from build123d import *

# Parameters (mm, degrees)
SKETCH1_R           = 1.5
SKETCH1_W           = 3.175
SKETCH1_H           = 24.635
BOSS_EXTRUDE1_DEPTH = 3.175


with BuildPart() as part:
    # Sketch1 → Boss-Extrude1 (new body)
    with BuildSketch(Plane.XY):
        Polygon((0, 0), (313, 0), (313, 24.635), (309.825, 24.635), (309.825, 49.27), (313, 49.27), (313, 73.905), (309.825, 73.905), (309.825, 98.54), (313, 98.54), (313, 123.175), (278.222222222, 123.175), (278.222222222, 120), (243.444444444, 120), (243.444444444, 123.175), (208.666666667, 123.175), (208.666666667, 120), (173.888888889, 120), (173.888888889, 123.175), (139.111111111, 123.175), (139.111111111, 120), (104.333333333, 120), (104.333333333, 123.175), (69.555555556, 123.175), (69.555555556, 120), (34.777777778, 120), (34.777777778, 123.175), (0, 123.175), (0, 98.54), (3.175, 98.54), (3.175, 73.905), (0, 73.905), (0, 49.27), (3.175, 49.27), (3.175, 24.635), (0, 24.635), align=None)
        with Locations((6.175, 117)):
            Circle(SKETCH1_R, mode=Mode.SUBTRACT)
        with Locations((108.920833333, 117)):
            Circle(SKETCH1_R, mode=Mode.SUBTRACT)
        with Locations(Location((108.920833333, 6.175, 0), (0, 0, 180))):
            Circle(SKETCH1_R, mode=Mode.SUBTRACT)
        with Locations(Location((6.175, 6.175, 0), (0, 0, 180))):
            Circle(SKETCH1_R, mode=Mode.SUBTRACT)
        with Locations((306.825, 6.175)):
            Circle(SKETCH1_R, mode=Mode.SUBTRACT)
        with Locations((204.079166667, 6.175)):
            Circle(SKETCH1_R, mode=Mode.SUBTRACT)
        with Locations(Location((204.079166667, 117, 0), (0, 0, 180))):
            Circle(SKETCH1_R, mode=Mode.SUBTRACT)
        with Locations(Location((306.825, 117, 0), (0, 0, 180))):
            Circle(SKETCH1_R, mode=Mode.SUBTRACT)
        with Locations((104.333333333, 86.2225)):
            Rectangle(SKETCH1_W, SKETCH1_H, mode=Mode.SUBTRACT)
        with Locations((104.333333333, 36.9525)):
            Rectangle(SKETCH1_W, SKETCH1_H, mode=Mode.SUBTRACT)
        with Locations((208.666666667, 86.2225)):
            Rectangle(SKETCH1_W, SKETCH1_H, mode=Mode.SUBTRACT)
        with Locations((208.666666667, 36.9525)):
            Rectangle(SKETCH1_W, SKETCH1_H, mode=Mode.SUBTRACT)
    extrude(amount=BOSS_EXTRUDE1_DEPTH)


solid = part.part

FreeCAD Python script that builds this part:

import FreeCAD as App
import Part
import Sketcher
from FreeCAD import Vector
Q = App.Units.Quantity


def add_polygon(sketch, points):
    """Adds a closed chain of lines whose ends are joined by coincident constraints."""
    first, n = sketch.GeometryCount, len(points)
    for a, b in zip(points, points[1:] + points[:1]):
        sketch.addGeometry(Part.LineSegment(App.Vector(*a, 0), App.Vector(*b, 0)), False)
    for i in range(n):
        sketch.addConstraint(Sketcher.Constraint("Coincident", first + i, 2, first + (i + 1) % n, 1))

doc = App.newDocument("Part")
body = doc.addObject("PartDesign::Body", "Body")

# Sketch on XY plane
sketch1 = body.newObject("Sketcher::SketchObject", "Sketch")
sketch1.AttachmentSupport = (doc.getObject("XY_Plane"), [""])
sketch1.MapMode = "FlatFace"
add_polygon(sketch1, [(0, 0), (313, 0), (313, 24.635), (309.825, 24.635), (309.825, 49.27), (313, 49.27), (313, 73.905), (309.825, 73.905), (309.825, 98.54), (313, 98.54), (313, 123.175), (278.222222, 123.175), (278.222222, 120), (243.444444, 120), (243.444444, 123.175), (208.666667, 123.175), (208.666667, 120), (173.888889, 120), (173.888889, 123.175), (139.111111, 123.175), (139.111111, 120), (104.333333, 120), (104.333333, 123.175), (69.555556, 123.175), (69.555556, 120), (34.777778, 120), (34.777778, 123.175), (0, 123.175), (0, 98.54), (3.175, 98.54), (3.175, 73.905), (0, 73.905), (0, 49.27), (3.175, 49.27), (3.175, 24.635), (0, 24.635)])  # lines 0-35
sketch1.addGeometry(Part.Circle(Vector(6.175, 6.175, 0), Vector(0, 0, 1), 1.5), False)  # 36
sketch1.addGeometry(Part.Circle(Vector(108.920833, 6.175, 0), Vector(0, 0, 1), 1.5), False)  # 37
add_polygon(sketch1, [(105.920833, 24.635), (102.745833, 24.635), (102.745833, 49.27), (105.920833, 49.27)])  # lines 38-41
sketch1.addGeometry(Part.Circle(Vector(204.079167, 6.175, 0), Vector(0, 0, 1), 1.5), False)  # 42
sketch1.addGeometry(Part.Circle(Vector(306.825, 6.175, 0), Vector(0, 0, 1), 1.5), False)  # 43
add_polygon(sketch1, [(210.254167, 24.635), (207.079167, 24.635), (207.079167, 49.27), (210.254167, 49.27)])  # lines 44-47
add_polygon(sketch1, [(105.920833, 73.905), (102.745833, 73.905), (102.745833, 98.54), (105.920833, 98.54)])  # lines 48-51
sketch1.addGeometry(Part.Circle(Vector(6.175, 117, 0), Vector(0, 0, 1), 1.5), False)  # 52
sketch1.addGeometry(Part.Circle(Vector(108.920833, 117, 0), Vector(0, 0, 1), 1.5), False)  # 53
add_polygon(sketch1, [(210.254167, 73.905), (207.079167, 73.905), (207.079167, 98.54), (210.254167, 98.54)])  # lines 54-57
sketch1.addGeometry(Part.Circle(Vector(204.079167, 117, 0), Vector(0, 0, 1), 1.5), False)  # 58
sketch1.addGeometry(Part.Circle(Vector(306.825, 117, 0), Vector(0, 0, 1), 1.5), False)  # 59
sketch1.addConstraint([
    Sketcher.Constraint("Horizontal", 0),
    Sketcher.Constraint("Vertical", 1),
    Sketcher.Constraint("Horizontal", 2),
    Sketcher.Constraint("Vertical", 3),
    Sketcher.Constraint("Horizontal", 4),
    Sketcher.Constraint("Vertical", 5),
    Sketcher.Constraint("Horizontal", 6),
    Sketcher.Constraint("Vertical", 7),
    Sketcher.Constraint("Horizontal", 8),
    Sketcher.Constraint("Vertical", 9),
    Sketcher.Constraint("Horizontal", 10),
    Sketcher.Constraint("Vertical", 11),
    Sketcher.Constraint("Horizontal", 12),
    Sketcher.Constraint("Vertical", 13),
    Sketcher.Constraint("Horizontal", 14),
    Sketcher.Constraint("Vertical", 15),
    Sketcher.Constraint("Horizontal", 16),
    Sketcher.Constraint("Vertical", 17),
    Sketcher.Constraint("Horizontal", 18),
    Sketcher.Constraint("Vertical", 19),
    Sketcher.Constraint("Horizontal", 20),
    Sketcher.Constraint("Vertical", 21),
    Sketcher.Constraint("Horizontal", 22),
    Sketcher.Constraint("Vertical", 23),
    Sketcher.Constraint("Horizontal", 24),
    Sketcher.Constraint("Vertical", 25),
    Sketcher.Constraint("Horizontal", 26),
    Sketcher.Constraint("Vertical", 27),
    Sketcher.Constraint("Horizontal", 28),
    Sketcher.Constraint("Vertical", 29),
    Sketcher.Constraint("Horizontal", 30),
    Sketcher.Constraint("Vertical", 31),
    Sketcher.Constraint("Horizontal", 32),
    Sketcher.Constraint("Vertical", 33),
    Sketcher.Constraint("Horizontal", 34),
    Sketcher.Constraint("Vertical", 35),
    Sketcher.Constraint("Horizontal", 38),
    Sketcher.Constraint("Vertical", 39),
    Sketcher.Constraint("Horizontal", 40),
    Sketcher.Constraint("Vertical", 41),
    Sketcher.Constraint("Horizontal", 44),
    Sketcher.Constraint("Vertical", 45),
    Sketcher.Constraint("Horizontal", 46),
    Sketcher.Constraint("Vertical", 47),
    Sketcher.Constraint("Horizontal", 48),
    Sketcher.Constraint("Vertical", 49),
    Sketcher.Constraint("Horizontal", 50),
    Sketcher.Constraint("Vertical", 51),
    Sketcher.Constraint("Horizontal", 54),
    Sketcher.Constraint("Vertical", 55),
    Sketcher.Constraint("Horizontal", 56),
    Sketcher.Constraint("Vertical", 57),
    Sketcher.Constraint("Coincident", 35, 2, -1, 1),
    Sketcher.Constraint("Equal", 36, 37),
    Sketcher.Constraint("Equal", 37, 42),
    Sketcher.Constraint("Equal", 42, 43),
    Sketcher.Constraint("Equal", 43, 52),
    Sketcher.Constraint("Equal", 52, 53),
    Sketcher.Constraint("Equal", 53, 58),
    Sketcher.Constraint("Equal", 58, 59),
    Sketcher.Constraint("PointOnObject", 26, 2, -2),
    Sketcher.Constraint("PointOnObject", 30, 2, -2),
    Sketcher.Constraint("Horizontal", 36, 3, 37, 3),
    Sketcher.Constraint("Horizontal", 37, 3, 42, 3),
    Sketcher.Constraint("Horizontal", 42, 3, 43, 3),
    Sketcher.Constraint("Horizontal", 52, 3, 53, 3),
    Sketcher.Constraint("Horizontal", 53, 3, 58, 3),
    Sketcher.Constraint("Horizontal", 58, 3, 59, 3),
    Sketcher.Constraint("Horizontal", 10, 2, 13, 2),
    Sketcher.Constraint("Horizontal", 12, 2, 15, 2),
    Sketcher.Constraint("Horizontal", 14, 2, 17, 2),
    Sketcher.Constraint("Horizontal", 16, 2, 19, 2),
    Sketcher.Constraint("Horizontal", 18, 2, 21, 2),
    Sketcher.Constraint("Horizontal", 20, 2, 23, 2),
    Sketcher.Constraint("Horizontal", 22, 2, 25, 2),
    Sketcher.Constraint("Horizontal", 8, 2, 27, 2),
    Sketcher.Constraint("Horizontal", 6, 2, 29, 2),
    Sketcher.Constraint("Horizontal", 4, 2, 31, 2),
    Sketcher.Constraint("Horizontal", 2, 2, 33, 2),
    Sketcher.Constraint("Horizontal", 34, 2, 38, 2),
    Sketcher.Constraint("Horizontal", 32, 2, 39, 2),
    Sketcher.Constraint("Horizontal", 41, 2, 44, 2),
    Sketcher.Constraint("Horizontal", 40, 2, 45, 2),
    Sketcher.Constraint("Horizontal", 30, 2, 48, 2),
    Sketcher.Constraint("Horizontal", 28, 2, 49, 2),
    Sketcher.Constraint("Horizontal", 51, 2, 54, 2),
    Sketcher.Constraint("Horizontal", 50, 2, 55, 2),
    Sketcher.Constraint("Vertical", 36, 3, 52, 3),
    Sketcher.Constraint("Vertical", 37, 3, 53, 3),
    Sketcher.Constraint("Vertical", 42, 3, 58, 3),
    Sketcher.Constraint("Vertical", 43, 3, 59, 3),
    Sketcher.Constraint("Vertical", 1, 2, 4, 2),
    Sketcher.Constraint("Vertical", 3, 2, 6, 2),
    Sketcher.Constraint("Vertical", 5, 2, 8, 2),
    Sketcher.Constraint("Vertical", 29, 2, 32, 2),
    Sketcher.Constraint("Vertical", 39, 2, 48, 2),
    Sketcher.Constraint("Vertical", 41, 2, 50, 2),
    Sketcher.Constraint("Vertical", 45, 2, 54, 2),
    Sketcher.Constraint("Vertical", 47, 2, 56, 2),
    Sketcher.Constraint("Equal", 10, 12),
    Sketcher.Constraint("Equal", 12, 14),
    Sketcher.Constraint("Equal", 14, 16),
    Sketcher.Constraint("Equal", 16, 18),
    Sketcher.Constraint("Equal", 18, 20),
    Sketcher.Constraint("Equal", 20, 22),
    Sketcher.Constraint("Equal", 22, 24),
    Sketcher.Constraint("Equal", 24, 26),
    Sketcher.Constraint("Equal", 8, 28),
    Sketcher.Constraint("Equal", 34, 38),
    Sketcher.Constraint("Equal", 40, 44),
    Sketcher.Constraint("Equal", 1, 3),
    Sketcher.Constraint("Equal", 3, 5),
    Sketcher.Constraint("Equal", 5, 7),
    Sketcher.Constraint("Equal", 7, 9),
    Sketcher.Constraint("Equal", 56, 11),
    Sketcher.Constraint("Diameter", 36, Q("3 mm")),
    Sketcher.Constraint("DistanceX", 0, 1, 0, 2, Q("313 mm")),
    Sketcher.Constraint("DistanceY", -1, 1, 52, 3, Q("117 mm")),
    Sketcher.Constraint("DistanceY", -1, 1, 11, 2, Q("120 mm")),
    Sketcher.Constraint("DistanceX", 43, 3, 2, 2, Q("3 mm")),
    Sketcher.Constraint("DistanceX", 28, 2, 52, 3, Q("3 mm")),
    Sketcher.Constraint("DistanceX", 40, 2, 37, 3, Q("3 mm")),
    Sketcher.Constraint("DistanceX", 42, 3, 44, 2, Q("3 mm")),
    Sketcher.Constraint("DistanceX", 2, 2, 2, 1, Q("3.175 mm")),
    Sketcher.Constraint("DistanceY", 43, 3, 1, 2, Q("18.46 mm")),
    Sketcher.Constraint("DistanceX", 58, 3, 14, 2, Q("4.5875 mm")),
    Sketcher.Constraint("DistanceX", 20, 2, 53, 3, Q("4.5875 mm")),
])
pad1 = body.newObject("PartDesign::Pad", "Pad")
pad1.Profile = sketch1
pad1.Length = 3.175

doc.recompute()
